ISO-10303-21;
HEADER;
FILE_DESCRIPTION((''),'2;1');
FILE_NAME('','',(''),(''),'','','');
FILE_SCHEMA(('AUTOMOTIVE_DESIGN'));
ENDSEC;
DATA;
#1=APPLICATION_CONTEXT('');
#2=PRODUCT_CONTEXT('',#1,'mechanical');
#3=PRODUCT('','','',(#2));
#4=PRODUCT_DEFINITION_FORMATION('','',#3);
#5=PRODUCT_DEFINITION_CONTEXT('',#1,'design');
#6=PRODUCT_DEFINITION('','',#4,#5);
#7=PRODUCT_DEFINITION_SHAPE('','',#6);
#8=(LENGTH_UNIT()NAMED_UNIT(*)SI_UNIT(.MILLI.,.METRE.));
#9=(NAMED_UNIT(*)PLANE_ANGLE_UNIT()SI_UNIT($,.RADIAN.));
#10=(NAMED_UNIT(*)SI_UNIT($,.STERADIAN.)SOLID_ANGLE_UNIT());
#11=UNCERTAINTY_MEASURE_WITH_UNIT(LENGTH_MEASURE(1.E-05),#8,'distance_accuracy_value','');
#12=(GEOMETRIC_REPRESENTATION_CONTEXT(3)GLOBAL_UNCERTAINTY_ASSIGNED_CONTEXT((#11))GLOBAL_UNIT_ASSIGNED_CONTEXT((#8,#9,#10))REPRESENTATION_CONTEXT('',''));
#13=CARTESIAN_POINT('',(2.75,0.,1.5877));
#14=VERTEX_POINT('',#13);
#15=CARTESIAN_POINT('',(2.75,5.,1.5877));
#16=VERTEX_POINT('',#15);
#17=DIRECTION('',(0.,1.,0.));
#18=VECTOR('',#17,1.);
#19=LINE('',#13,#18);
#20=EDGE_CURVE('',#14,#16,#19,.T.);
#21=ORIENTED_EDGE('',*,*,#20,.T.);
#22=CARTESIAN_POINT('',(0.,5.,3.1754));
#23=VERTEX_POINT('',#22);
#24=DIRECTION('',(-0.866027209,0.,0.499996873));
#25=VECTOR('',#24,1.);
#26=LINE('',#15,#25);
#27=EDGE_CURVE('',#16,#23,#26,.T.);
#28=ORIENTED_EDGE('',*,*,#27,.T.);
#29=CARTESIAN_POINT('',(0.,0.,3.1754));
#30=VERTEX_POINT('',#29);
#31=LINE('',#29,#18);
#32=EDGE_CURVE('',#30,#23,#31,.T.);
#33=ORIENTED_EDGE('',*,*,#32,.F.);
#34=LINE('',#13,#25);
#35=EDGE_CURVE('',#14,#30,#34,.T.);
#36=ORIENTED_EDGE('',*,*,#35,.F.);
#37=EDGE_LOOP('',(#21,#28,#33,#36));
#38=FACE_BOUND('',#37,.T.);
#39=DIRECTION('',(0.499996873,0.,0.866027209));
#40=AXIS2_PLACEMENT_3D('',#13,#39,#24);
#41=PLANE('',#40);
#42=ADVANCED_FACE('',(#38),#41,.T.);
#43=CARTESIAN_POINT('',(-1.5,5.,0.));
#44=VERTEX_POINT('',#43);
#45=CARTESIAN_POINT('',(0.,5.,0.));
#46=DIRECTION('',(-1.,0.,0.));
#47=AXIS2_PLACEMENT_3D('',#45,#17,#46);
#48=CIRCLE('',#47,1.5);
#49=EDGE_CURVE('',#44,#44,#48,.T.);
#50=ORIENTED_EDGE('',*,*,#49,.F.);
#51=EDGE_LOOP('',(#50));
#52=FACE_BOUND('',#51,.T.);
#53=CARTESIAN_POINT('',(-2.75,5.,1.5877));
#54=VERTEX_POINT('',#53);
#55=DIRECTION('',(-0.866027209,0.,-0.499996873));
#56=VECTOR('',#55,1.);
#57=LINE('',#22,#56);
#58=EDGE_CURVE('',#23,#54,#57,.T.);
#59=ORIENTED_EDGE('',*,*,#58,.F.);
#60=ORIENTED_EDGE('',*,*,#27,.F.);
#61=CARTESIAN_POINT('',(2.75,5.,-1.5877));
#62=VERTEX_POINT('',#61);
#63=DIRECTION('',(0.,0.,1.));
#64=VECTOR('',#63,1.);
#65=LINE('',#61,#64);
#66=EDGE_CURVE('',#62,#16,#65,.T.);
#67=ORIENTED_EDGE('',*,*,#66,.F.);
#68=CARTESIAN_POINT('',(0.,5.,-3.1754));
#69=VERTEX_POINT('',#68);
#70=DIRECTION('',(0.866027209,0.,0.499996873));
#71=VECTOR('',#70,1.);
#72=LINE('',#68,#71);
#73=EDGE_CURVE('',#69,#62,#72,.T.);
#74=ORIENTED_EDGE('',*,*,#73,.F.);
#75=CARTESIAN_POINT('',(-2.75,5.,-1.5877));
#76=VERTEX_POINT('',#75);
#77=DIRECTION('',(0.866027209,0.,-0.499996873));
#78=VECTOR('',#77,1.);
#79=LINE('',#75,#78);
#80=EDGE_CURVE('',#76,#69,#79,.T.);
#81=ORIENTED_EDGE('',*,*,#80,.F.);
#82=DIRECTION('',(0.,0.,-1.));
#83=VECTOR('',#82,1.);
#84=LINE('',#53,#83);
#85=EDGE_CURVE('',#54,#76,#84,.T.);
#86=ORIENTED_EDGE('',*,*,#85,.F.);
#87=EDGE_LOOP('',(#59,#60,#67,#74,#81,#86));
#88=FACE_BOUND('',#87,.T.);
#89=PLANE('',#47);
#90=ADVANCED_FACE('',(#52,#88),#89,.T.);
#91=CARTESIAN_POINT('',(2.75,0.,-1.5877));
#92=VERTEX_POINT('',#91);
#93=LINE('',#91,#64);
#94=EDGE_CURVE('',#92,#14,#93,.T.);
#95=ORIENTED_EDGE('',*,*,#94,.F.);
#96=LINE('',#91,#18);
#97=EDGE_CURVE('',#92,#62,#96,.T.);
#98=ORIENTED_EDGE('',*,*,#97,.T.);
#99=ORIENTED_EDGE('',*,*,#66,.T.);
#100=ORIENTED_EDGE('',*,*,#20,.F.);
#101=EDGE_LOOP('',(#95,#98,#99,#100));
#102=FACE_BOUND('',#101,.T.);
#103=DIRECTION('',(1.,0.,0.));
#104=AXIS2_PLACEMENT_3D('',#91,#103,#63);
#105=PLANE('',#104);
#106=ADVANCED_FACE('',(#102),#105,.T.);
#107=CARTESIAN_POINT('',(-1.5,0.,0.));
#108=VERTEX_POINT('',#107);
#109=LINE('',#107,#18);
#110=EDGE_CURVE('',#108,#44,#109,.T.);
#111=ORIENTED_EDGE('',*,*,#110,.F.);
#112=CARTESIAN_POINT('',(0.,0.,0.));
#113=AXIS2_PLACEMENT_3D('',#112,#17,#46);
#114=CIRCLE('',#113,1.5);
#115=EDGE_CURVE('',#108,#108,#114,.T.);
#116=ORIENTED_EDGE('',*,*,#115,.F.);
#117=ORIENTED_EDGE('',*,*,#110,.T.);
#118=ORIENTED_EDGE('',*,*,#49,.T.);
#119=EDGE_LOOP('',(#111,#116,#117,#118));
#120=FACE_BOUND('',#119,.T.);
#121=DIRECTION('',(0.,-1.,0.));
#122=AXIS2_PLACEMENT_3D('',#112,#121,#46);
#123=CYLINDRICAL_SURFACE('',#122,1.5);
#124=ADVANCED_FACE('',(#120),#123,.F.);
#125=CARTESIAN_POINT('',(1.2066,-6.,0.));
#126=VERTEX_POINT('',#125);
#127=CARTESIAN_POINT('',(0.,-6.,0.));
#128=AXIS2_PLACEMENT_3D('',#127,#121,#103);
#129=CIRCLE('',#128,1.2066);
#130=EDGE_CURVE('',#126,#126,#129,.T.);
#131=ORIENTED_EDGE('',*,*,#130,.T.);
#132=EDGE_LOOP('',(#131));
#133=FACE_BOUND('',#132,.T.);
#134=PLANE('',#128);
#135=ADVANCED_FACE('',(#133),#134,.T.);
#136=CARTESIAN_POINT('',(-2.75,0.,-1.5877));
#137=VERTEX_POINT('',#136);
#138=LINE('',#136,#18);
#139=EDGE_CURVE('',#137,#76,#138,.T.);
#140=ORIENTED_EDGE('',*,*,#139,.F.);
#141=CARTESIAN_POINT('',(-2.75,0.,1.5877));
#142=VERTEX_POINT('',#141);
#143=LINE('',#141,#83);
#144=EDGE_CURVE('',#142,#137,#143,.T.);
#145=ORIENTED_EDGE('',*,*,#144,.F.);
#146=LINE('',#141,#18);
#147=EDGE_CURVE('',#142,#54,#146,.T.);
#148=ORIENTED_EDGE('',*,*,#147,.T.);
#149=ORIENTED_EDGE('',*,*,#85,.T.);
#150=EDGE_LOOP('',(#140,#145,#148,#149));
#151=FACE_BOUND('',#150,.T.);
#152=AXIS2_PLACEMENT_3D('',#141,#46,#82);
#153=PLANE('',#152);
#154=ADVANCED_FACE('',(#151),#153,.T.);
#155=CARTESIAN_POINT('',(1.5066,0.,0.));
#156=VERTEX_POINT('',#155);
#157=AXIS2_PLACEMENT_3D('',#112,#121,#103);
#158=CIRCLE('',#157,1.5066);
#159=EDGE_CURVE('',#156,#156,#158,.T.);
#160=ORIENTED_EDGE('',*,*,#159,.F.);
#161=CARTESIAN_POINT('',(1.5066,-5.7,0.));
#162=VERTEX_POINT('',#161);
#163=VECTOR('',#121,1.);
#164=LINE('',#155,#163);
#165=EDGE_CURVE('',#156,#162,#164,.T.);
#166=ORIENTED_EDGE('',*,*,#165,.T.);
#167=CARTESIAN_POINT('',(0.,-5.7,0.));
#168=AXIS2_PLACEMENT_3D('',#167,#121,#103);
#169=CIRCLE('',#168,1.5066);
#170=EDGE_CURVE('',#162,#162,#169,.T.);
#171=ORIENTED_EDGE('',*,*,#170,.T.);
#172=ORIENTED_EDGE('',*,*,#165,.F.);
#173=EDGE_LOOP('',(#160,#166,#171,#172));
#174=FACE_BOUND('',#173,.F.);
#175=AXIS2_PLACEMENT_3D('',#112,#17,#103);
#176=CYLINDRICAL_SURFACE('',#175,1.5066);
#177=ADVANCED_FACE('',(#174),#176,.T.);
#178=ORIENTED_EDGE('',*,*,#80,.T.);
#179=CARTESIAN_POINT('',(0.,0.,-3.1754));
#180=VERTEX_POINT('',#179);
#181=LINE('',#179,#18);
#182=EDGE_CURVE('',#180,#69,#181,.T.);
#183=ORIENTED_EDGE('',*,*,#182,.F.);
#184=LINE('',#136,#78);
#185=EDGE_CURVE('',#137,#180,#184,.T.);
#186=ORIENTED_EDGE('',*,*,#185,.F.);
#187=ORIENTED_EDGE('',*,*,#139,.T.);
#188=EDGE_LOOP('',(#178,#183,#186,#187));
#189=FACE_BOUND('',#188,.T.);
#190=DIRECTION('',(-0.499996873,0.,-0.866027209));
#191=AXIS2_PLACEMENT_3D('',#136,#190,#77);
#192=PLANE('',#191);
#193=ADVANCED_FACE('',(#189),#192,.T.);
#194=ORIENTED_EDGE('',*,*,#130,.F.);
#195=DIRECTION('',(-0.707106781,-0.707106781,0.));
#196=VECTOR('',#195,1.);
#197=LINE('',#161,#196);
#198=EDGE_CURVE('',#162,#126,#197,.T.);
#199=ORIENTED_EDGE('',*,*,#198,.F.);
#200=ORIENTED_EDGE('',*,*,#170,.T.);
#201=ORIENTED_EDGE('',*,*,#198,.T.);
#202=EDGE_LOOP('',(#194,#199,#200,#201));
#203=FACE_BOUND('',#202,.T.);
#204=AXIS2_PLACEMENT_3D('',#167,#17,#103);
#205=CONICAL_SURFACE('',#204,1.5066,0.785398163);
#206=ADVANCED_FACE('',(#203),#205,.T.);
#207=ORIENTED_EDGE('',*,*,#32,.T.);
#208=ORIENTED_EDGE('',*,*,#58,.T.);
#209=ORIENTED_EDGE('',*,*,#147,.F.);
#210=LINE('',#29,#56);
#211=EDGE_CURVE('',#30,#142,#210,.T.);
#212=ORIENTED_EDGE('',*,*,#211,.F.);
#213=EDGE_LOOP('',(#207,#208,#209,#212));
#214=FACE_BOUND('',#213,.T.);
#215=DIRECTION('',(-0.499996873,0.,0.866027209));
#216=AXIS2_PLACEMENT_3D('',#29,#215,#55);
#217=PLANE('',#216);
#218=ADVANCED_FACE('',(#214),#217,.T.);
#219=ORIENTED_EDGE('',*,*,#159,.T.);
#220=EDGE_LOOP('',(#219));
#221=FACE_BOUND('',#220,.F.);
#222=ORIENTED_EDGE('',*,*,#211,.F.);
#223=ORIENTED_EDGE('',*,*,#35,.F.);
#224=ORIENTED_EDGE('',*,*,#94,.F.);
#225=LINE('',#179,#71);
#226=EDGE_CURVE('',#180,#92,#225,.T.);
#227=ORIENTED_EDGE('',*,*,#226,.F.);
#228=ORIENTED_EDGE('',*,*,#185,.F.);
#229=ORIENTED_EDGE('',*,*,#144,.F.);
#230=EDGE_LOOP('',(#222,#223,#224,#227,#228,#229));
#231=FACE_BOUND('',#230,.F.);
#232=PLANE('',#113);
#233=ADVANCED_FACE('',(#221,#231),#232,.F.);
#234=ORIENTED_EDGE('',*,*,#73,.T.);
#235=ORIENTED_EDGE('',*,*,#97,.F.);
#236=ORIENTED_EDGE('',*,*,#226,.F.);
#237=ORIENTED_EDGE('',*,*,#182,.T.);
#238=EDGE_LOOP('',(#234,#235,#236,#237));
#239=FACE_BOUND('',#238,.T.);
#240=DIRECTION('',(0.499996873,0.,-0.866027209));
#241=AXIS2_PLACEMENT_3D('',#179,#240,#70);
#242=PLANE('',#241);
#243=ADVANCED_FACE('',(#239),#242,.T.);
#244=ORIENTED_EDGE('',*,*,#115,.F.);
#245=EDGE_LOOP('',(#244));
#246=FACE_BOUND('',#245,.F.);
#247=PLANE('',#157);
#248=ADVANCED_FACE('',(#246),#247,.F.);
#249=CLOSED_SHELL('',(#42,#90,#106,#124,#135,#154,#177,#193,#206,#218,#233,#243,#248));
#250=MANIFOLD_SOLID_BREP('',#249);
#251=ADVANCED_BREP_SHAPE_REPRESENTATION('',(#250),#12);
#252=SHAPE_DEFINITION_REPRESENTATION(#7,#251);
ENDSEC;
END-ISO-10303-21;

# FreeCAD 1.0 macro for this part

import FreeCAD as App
import Part
import Sketcher
from FreeCAD import Vector
Q = App.Units.Quantity


def edges_at(feature, points):
    """Names of the edges that pass closest to the given points."""
    edges = feature.Shape.Edges
    near = lambda p: min(range(len(edges)), key=lambda i: edges[i].distToShape(Part.Vertex(*p))[0])
    return sorted({f"Edge{near(p) + 1}" for p in points})

doc = App.newDocument("Part")
body = doc.addObject("PartDesign::Body", "Body")

# Sketch on XZ plane
sketch1 = body.newObject("Sketcher::SketchObject", "Sketch")
sketch1.AttachmentSupport = (doc.getObject("XZ_Plane"), [""])
sketch1.MapMode = "FlatFace"
sketch1.addGeometry([
    Part.LineSegment(Vector(-2.8, 1.6, 0), Vector(0, 3.2, 0)),  # 0
    Part.LineSegment(Vector(0, 3.2, 0), Vector(2.8, 1.6, 0)),  # 1
    Part.LineSegment(Vector(2.8, 1.6, 0), Vector(2.8, -1.6, 0)),  # 2
    Part.LineSegment(Vector(2.8, -1.6, 0), Vector(0, -3.2, 0)),  # 3
    Part.LineSegment(Vector(0, -3.2, 0), Vector(-2.8, -1.6, 0)),  # 4
    Part.LineSegment(Vector(-2.8, -1.6, 0), Vector(-2.8, 1.6, 0)),  # 5
    Part.Circle(Vector(0, 0, 0), Vector(0, 0, 1), 1.5),  # 6
], False)
sketch1.addConstraint([
    Sketcher.Constraint("Coincident", 0, 2, 1, 1),
    Sketcher.Constraint("Coincident", 1, 2, 2, 1),
    Sketcher.Constraint("Coincident", 2, 2, 3, 1),
    Sketcher.Constraint("Coincident", 3, 2, 4, 1),
    Sketcher.Constraint("Coincident", 4, 2, 5, 1),
    Sketcher.Constraint("Coincident", 5, 2, 0, 1),
    Sketcher.Constraint("Vertical", 2),
    Sketcher.Constraint("Vertical", 5),
    Sketcher.Constraint("Coincident", 6, 3, -1, 1),
    Sketcher.Constraint("Symmetric", 0, 2, 3, 2, -1, 1),
    Sketcher.Constraint("Symmetric", 1, 2, 4, 2, -1, 1),
    Sketcher.Constraint("PointOnObject", 0, 2, -2),
    Sketcher.Constraint("Parallel", 0, 3),
    Sketcher.Constraint("Horizontal", 2, 2, 4, 2),
    Sketcher.Constraint("Diameter", 6, 3.0),
    Sketcher.Constraint("DistanceX", 4, 2, 2, 2, 5.5),
    Sketcher.Constraint("Angle", 0, Q("29.9998 deg")),
    Sketcher.Constraint("DistanceY", 2, 2, 2, 1, 3.1754),
])
pad1 = body.newObject("PartDesign::Pad", "Pad")
pad1.Profile = sketch1
pad1.Length = 5
pad1.Reversed = True

# Sketch on XZ plane
sketch2 = body.newObject("Sketcher::SketchObject", "Sketch001")
sketch2.AttachmentSupport = (doc.getObject("XZ_Plane"), [""])
sketch2.MapMode = "FlatFace"
sketch2.addGeometry(Part.Circle(Vector(0, 0, 0), Vector(0, 0, 1), 1.5), False)
sketch2.addConstraint([
    Sketcher.Constraint("Coincident", 0, 3, -1, 1),
    Sketcher.Constraint("Diameter", 0, 3.0132),
])
pad2 = body.newObject("PartDesign::Pad", "Pad001")
pad2.Profile = sketch2
pad2.Length = 6
doc.recompute()

chamfer = body.newObject("PartDesign::Chamfer", "Chamfer")
chamfer.Base = (pad2, edges_at(pad2, [(-1.507, -6, 0)]))
chamfer.Size = 0.3

doc.recompute()
